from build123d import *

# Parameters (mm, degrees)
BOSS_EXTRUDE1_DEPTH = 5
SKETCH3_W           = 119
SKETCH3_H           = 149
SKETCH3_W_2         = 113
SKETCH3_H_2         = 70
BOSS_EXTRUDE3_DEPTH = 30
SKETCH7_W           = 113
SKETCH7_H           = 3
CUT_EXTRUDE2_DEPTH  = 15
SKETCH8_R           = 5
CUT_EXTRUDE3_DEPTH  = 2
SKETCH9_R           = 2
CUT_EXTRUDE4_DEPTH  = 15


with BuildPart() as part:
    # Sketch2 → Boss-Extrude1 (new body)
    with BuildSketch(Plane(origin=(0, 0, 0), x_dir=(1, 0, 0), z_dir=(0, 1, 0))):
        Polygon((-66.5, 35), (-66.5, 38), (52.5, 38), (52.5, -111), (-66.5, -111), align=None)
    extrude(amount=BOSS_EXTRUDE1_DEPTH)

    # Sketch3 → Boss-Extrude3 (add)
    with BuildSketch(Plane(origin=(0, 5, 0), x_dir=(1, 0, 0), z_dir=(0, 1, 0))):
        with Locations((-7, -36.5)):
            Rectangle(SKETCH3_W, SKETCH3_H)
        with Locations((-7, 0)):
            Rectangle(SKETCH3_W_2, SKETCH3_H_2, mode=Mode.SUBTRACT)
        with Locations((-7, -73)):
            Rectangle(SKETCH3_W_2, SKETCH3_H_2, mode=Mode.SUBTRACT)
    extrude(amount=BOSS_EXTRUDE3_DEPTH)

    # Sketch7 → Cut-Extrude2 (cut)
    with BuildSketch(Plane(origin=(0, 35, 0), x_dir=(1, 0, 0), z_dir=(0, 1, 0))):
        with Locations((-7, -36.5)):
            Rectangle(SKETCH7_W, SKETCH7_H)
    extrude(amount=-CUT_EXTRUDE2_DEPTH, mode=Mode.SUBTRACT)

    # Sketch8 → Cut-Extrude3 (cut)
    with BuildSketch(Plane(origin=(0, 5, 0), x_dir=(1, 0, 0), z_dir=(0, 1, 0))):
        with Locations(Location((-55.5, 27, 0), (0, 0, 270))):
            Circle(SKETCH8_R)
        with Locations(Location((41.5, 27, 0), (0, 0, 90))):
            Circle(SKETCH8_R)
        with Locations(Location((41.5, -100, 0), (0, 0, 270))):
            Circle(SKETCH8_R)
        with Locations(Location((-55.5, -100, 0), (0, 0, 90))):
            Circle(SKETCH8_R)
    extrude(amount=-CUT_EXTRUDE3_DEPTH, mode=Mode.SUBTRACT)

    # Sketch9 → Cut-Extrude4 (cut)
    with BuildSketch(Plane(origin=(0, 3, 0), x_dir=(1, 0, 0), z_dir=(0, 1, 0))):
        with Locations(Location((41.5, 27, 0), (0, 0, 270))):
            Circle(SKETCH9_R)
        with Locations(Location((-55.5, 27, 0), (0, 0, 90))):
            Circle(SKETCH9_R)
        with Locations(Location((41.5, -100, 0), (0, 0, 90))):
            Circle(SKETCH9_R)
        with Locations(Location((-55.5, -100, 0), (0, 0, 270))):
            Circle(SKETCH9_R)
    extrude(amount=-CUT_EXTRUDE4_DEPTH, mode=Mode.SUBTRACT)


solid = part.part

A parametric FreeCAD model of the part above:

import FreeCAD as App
import Part
import Sketcher

V = App.Vector


def add_polygon(sketch, points):
    """Adds a closed chain of lines whose ends are joined by coincident constraints."""
    first, n = sketch.GeometryCount, len(points)
    for a, b in zip(points, points[1:] + points[:1]):
        sketch.addGeometry(Part.LineSegment(App.Vector(*a, 0), App.Vector(*b, 0)), False)
    for i in range(n):
        sketch.addConstraint(Sketcher.Constraint("Coincident", first + i, 2, first + (i + 1) % n, 1))

doc = App.newDocument("Part")
body = doc.addObject("PartDesign::Body", "Body")

sketch1 = body.newObject("Sketcher::SketchObject", "Sketch")
sketch1.AttachmentSupport = (doc.getObject("XZ_Plane"), [""])
sketch1.MapMode = "FlatFace"
add_polygon(sketch1, [(-66, -38), (-66, 111), (52, 111), (52, -38)])
sketch1.addConstraint([
    Sketcher.Constraint("Vertical", 0),
    Sketcher.Constraint("Horizontal", 1),
    Sketcher.Constraint("Vertical", 2),
    Sketcher.Constraint("Horizontal", 3),
    Sketcher.Constraint("DistanceX", 1, 1, 1, 2, 119.0),
    Sketcher.Constraint("DistanceY", 0, 1, 0, 2, 149.0),
    Sketcher.Constraint("DistanceY", -1, 1, 0, 2, 111.0),
    Sketcher.Constraint("DistanceX", 0, 2, -1, 1, 66.5),
])
pad1 = body.newObject("PartDesign::Pad", "Pad")
pad1.Profile = sketch1
pad1.Length = 5
pad1.Reversed = True

sketch2 = body.newObject("Sketcher::SketchObject", "Sketch001")
sketch2.AttachmentSupport = (doc.getObject("XZ_Plane"), [""])
sketch2.MapMode = "FlatFace"
sketch2.AttachmentOffset = App.Placement(V(0, 0, -5), App.Rotation())
add_polygon(sketch2, [(-66, -38), (-66, 111), (52, 111), (52, -38)])
add_polygon(sketch2, [(50, 108), (-64, 108), (-64, 38), (50, 38)])
add_polygon(sketch2, [(50, 35), (-64, 35), (-64, -35), (50, -35)])
sketch2.addConstraint([
    Sketcher.Constraint("Vertical", 0),
    Sketcher.Constraint("Horizontal", 1),
    Sketcher.Constraint("Vertical", 2),
    Sketcher.Constraint("Horizontal", 3),
    Sketcher.Constraint("Horizontal", 4),
    Sketcher.Constraint("Vertical", 5),
    Sketcher.Constraint("Horizontal", 6),
    Sketcher.Constraint("Vertical", 7),
    Sketcher.Constraint("Horizontal", 8),
    Sketcher.Constraint("Vertical", 9),
    Sketcher.Constraint("Horizontal", 10),
    Sketcher.Constraint("Vertical", 11),
    Sketcher.Constraint("Vertical", 5, 2, 8, 2),
    Sketcher.Constraint("Vertical", 7, 2, 10, 2),
    Sketcher.Constraint("Equal", 7, 9),
    Sketcher.Constraint("DistanceX", 1, 1, 1, 2, 119.0),
    Sketcher.Constraint("DistanceX", 4, 2, 4, 1, 113.0),
    Sketcher.Constraint("DistanceY", 0, 1, 0, 2, 149.0),
    Sketcher.Constraint("DistanceY", 5, 2, 5, 1, 70.0),
    Sketcher.Constraint("DistanceY", -1, 1, 0, 2, 111.0),
    Sketcher.Constraint("DistanceY", -1, 1, 4, 2, 108.0),
    Sketcher.Constraint("DistanceY", -1, 1, 8, 2, 35.0),
    Sketcher.Constraint("DistanceX", 0, 2, 4, 2, 3.0),
    Sketcher.Constraint("DistanceX", 0, 2, -1, 1, 66.5),
])
pad2 = body.newObject("PartDesign::Pad", "Pad001")
pad2.Profile = sketch2
pad2.Length = 30
pad2.Reversed = True

sketch3 = body.newObject("Sketcher::SketchObject", "Sketch002")
sketch3.AttachmentSupport = (doc.getObject("XZ_Plane"), [""])
sketch3.MapMode = "FlatFace"
sketch3.AttachmentOffset = App.Placement(V(0, 0, -35), App.Rotation())
add_polygon(sketch3, [(-63.5, 35), (-63.5, 38), (49.5, 38), (49.5, 35)])
sketch3.addConstraint([
    Sketcher.Constraint("Vertical", 0),
    Sketcher.Constraint("Horizontal", 1),
    Sketcher.Constraint("Vertical", 2),
    Sketcher.Constraint("Horizontal", 3),
    Sketcher.Constraint("DistanceX", 1, 1, 1, 2, 113.0),
    Sketcher.Constraint("DistanceY", 0, 1, 0, 2, 3.0),
    Sketcher.Constraint("DistanceY", -1, 1, 0, 2, 38.0),
    Sketcher.Constraint("DistanceX", 0, 2, -1, 1, 63.5),
])
pocket1 = body.newObject("PartDesign::Pocket", "Pocket")
pocket1.Profile = sketch3
pocket1.Length = 15
pocket1.Reversed = True

sketch4 = body.newObject("Sketcher::SketchObject", "Sketch003")
sketch4.AttachmentSupport = (doc.getObject("XZ_Plane"), [""])
sketch4.MapMode = "FlatFace"
sketch4.AttachmentOffset = App.Placement(V(0, 0, -5), App.Rotation())
sketch4.addGeometry([
    Part.Circle(V(-56, -27, 0), V(0, 0, 1), 5),
    Part.Circle(V(42, -27, 0), V(0, 0, 1), 5),
    Part.Circle(V(42, 100, 0), V(0, 0, 1), 5),
    Part.Circle(V(-56, 100, 0), V(0, 0, 1), 5),
], False)
sketch4.addConstraint([
    Sketcher.Constraint("Equal", 0, 1),
    Sketcher.Constraint("Equal", 1, 2),
    Sketcher.Constraint("Equal", 2, 3),
    Sketcher.Constraint("Horizontal", 0, 3, 1, 3),
    Sketcher.Constraint("Horizontal", 2, 3, 3, 3),
    Sketcher.Constraint("Vertical", 1, 3, 2, 3),
    Sketcher.Constraint("Vertical", 0, 3, 3, 3),
    Sketcher.Constraint("Diameter", 0, 10.0),
    Sketcher.Constraint("DistanceY", 0, 3, -1, 1, 27.0),
    Sketcher.Constraint("DistanceY", -1, 1, 2, 3, 100.0),
    Sketcher.Constraint("DistanceX", 0, 3, 1, 3, 97.0),
    Sketcher.Constraint("DistanceX", 0, 3, -1, 1, 55.5),
])
pocket2 = body.newObject("PartDesign::Pocket", "Pocket001")
pocket2.Profile = sketch4
pocket2.Length = 2
pocket2.Reversed = True

sketch5 = body.newObject("Sketcher::SketchObject", "Sketch004")
sketch5.AttachmentSupport = (doc.getObject("XZ_Plane"), [""])
sketch5.MapMode = "FlatFace"
sketch5.AttachmentOffset = App.Placement(V(0, 0, -3), App.Rotation())
sketch5.addGeometry([
    Part.Circle(V(41.5, -27, 0), V(0, 0, 1), 2),
    Part.Circle(V(-55.5, -27, 0), V(0, 0, 1), 2),
    Part.Circle(V(41.5, 100, 0), V(0, 0, 1), 2),
    Part.Circle(V(-55.5, 100, 0), V(0, 0, 1), 2),
], False)
sketch5.addConstraint([
    Sketcher.Constraint("Equal", 0, 1),
    Sketcher.Constraint("Equal", 1, 2),
    Sketcher.Constraint("Equal", 2, 3),
    Sketcher.Constraint("Horizontal", 0, 3, 1, 3),
    Sketcher.Constraint("Horizontal", 2, 3, 3, 3),
    Sketcher.Constraint("Vertical", 0, 3, 2, 3),
    Sketcher.Constraint("Vertical", 1, 3, 3, 3),
    Sketcher.Constraint("Diameter", 0, 4.0),
    Sketcher.Constraint("DistanceY", 0, 3, -1, 1, 27.0),
    Sketcher.Constraint("DistanceY", -1, 1, 2, 3, 100.0),
    Sketcher.Constraint("DistanceX", 1, 3, 0, 3, 97.0),
    Sketcher.Constraint("DistanceX", -1, 1, 0, 3, 41.5),
])
pocket3 = body.newObject("PartDesign::Pocket", "Pocket002")
pocket3.Profile = sketch5
pocket3.Length = 15
pocket3.Reversed = True

doc.recompute()
